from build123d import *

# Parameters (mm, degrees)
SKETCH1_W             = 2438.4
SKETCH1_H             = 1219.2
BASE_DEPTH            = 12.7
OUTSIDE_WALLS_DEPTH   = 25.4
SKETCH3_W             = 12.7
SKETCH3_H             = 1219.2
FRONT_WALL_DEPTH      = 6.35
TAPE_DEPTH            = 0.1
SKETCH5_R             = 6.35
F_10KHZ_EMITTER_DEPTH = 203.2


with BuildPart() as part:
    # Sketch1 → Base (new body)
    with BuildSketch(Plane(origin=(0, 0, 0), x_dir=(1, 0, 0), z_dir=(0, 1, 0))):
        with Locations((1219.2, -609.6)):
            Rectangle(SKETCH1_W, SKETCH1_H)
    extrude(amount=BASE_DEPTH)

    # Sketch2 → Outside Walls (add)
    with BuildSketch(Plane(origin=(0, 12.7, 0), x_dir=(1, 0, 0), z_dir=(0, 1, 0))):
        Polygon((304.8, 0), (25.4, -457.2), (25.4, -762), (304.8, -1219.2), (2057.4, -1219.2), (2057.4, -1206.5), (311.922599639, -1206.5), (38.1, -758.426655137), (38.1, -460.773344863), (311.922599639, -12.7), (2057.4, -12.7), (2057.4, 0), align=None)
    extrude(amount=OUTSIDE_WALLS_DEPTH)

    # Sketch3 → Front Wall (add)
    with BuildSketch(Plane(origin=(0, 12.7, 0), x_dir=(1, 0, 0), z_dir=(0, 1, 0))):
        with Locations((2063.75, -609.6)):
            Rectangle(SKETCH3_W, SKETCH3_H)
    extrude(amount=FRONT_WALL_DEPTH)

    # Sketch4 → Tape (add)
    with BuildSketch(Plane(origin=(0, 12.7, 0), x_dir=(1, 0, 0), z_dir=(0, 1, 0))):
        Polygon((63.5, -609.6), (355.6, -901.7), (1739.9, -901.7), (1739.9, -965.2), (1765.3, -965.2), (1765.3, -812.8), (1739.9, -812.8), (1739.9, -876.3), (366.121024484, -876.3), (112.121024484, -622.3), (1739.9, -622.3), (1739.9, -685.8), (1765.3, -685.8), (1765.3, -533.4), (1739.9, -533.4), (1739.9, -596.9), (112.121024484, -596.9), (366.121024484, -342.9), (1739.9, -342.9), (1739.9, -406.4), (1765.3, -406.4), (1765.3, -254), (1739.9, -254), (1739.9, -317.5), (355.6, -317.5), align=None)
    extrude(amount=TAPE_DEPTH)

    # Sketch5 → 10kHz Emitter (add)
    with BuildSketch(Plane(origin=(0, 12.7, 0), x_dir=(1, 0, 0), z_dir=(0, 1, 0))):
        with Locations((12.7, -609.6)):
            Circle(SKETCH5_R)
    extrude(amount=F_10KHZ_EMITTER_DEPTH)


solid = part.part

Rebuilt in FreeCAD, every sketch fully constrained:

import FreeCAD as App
import Part
import Sketcher
Q = App.Units.Quantity

doc = App.newDocument("Part")
body = doc.addObject("PartDesign::Body", "Body")

sketch1 = body.newObject("Sketcher::SketchObject", "Sketch")
sketch1.AttachmentSupport = (doc.getObject("XZ_Plane"), [""])
sketch1.MapMode = "FlatFace"
sketch1.addGeometry([
    Part.LineSegment(App.Vector(0, 0, 0), App.Vector(0, 1219, 0)),
    Part.LineSegment(App.Vector(0, 1219, 0), App.Vector(2438, 1219, 0)),
    Part.LineSegment(App.Vector(2438, 1219, 0), App.Vector(2438, 0, 0)),
    Part.LineSegment(App.Vector(2438, 0, 0), App.Vector(0, 0, 0)),
], False)
sketch1.addConstraint([
    Sketcher.Constraint("Coincident", 0, 2, 1, 1),
    Sketcher.Constraint("Coincident", 1, 2, 2, 1),
    Sketcher.Constraint("Coincident", 2, 2, 3, 1),
    Sketcher.Constraint("Coincident", 3, 2, 0, 1),
    Sketcher.Constraint("Vertical", 0),
    Sketcher.Constraint("Horizontal", 1),
    Sketcher.Constraint("Vertical", 2),
    Sketcher.Constraint("Horizontal", 3),
    Sketcher.Constraint("Coincident", 3, 2, -1, 1),
    Sketcher.Constraint("DistanceX", 1, 1, 1, 2, Q("96 in")),
    Sketcher.Constraint("DistanceY", 0, 1, 0, 2, Q("48 in")),
])
pad1 = body.newObject("PartDesign::Pad", "Pad")
pad1.Profile = sketch1
pad1.Length = Q("0.5 in")
pad1.Reversed = True

sketch2 = body.newObject("Sketcher::SketchObject", "Sketch001")
sketch2.AttachmentSupport = (doc.getObject("XZ_Plane"), [""])
sketch2.MapMode = "FlatFace"
sketch2.AttachmentOffset = App.Placement(App.Vector(0, 0, -0.5 * 25.4), App.Rotation())
sketch2.addGeometry([
    Part.LineSegment(App.Vector(305, 0, 0), App.Vector(25, 457, 0)),
    Part.LineSegment(App.Vector(25, 457, 0), App.Vector(25, 762, 0)),
    Part.LineSegment(App.Vector(25, 762, 0), App.Vector(305, 1219, 0)),
    Part.LineSegment(App.Vector(305, 1219, 0), App.Vector(2057, 1219, 0)),
    Part.LineSegment(App.Vector(2057, 1219, 0), App.Vector(2057, 1206, 0)),
    Part.LineSegment(App.Vector(2057, 1206, 0), App.Vector(312, 1206, 0)),
    Part.LineSegment(App.Vector(312, 1206, 0), App.Vector(38, 758, 0)),
    Part.LineSegment(App.Vector(38, 758, 0), App.Vector(38, 461, 0)),
    Part.LineSegment(App.Vector(38, 461, 0), App.Vector(312, 13, 0)),
    Part.LineSegment(App.Vector(312, 13, 0), App.Vector(2057, 13, 0)),
    Part.LineSegment(App.Vector(2057, 13, 0), App.Vector(2057, 0, 0)),
    Part.LineSegment(App.Vector(2057, 0, 0), App.Vector(305, 0, 0)),
], False)
sketch2.addConstraint([
    Sketcher.Constraint("Coincident", 0, 2, 1, 1),
    Sketcher.Constraint("Coincident", 1, 2, 2, 1),
    Sketcher.Constraint("Coincident", 2, 2, 3, 1),
    Sketcher.Constraint("Coincident", 3, 2, 4, 1),
    Sketcher.Constraint("Coincident", 4, 2, 5, 1),
    Sketcher.Constraint("Coincident", 5, 2, 6, 1),
    Sketcher.Constraint("Coincident", 6, 2, 7, 1),
    Sketcher.Constraint("Coincident", 7, 2, 8, 1),
    Sketcher.Constraint("Coincident", 8, 2, 9, 1),
    Sketcher.Constraint("Coincident", 9, 2, 10, 1),
    Sketcher.Constraint("Coincident", 10, 2, 11, 1),
    Sketcher.Constraint("Coincident", 11, 2, 0, 1),
    Sketcher.Constraint("Vertical", 1),
    Sketcher.Constraint("Horizontal", 3),
    Sketcher.Constraint("Vertical", 4),
    Sketcher.Constraint("Horizontal", 5),
    Sketcher.Constraint("Vertical", 7),
    Sketcher.Constraint("Horizontal", 9),
    Sketcher.Constraint("Vertical", 10),
    Sketcher.Constraint("Horizontal", 11),
    Sketcher.Constraint("PointOnObject", 10, 2, -1),
    Sketcher.Constraint("Parallel", 2, 6),
    Sketcher.Constraint("Parallel", 0, 8),
    Sketcher.Constraint("Vertical", 5, 2, 8, 2),
    Sketcher.Constraint("Vertical", 4, 2, 9, 2),
    Sketcher.Constraint("Vertical", 2, 2, 11, 2),
    Sketcher.Constraint("Equal", 4, 10),
    Sketcher.Constraint("Equal", 0, 2),
    Sketcher.Constraint("DistanceX", 3, 1, 3, 2, Q("69 in")),
    Sketcher.Constraint("DistanceY", 1, 1, 1, 2, Q("12 in")),
    Sketcher.Constraint("DistanceY", 4, 2, 4, 1, Q("0.5 in")),
    Sketcher.Constraint("DistanceX", -1, 1, 0, 2, Q("1 in")),
    Sketcher.Constraint("DistanceY", -1, 1, 0, 2, Q("18 in")),
    Sketcher.Constraint("DistanceX", -1, 1, 2, 2, Q("12 in")),
    Sketcher.Constraint("DistanceX", -1, 1, 6, 2, Q("1.5 in")),
    Sketcher.Constraint("DistanceX", 5, 2, 5, 1, 1745.4774),
])
pad2 = body.newObject("PartDesign::Pad", "Pad001")
pad2.Profile = sketch2
pad2.Length = Q("1 in")
pad2.Reversed = True

sketch3 = body.newObject("Sketcher::SketchObject", "Sketch002")
sketch3.AttachmentSupport = (doc.getObject("XZ_Plane"), [""])
sketch3.MapMode = "FlatFace"
sketch3.AttachmentOffset = App.Placement(App.Vector(0, 0, -0.5 * 25.4), App.Rotation())
sketch3.addGeometry([
    Part.LineSegment(App.Vector(2057, 0, 0), App.Vector(2057, 1219, 0)),
    Part.LineSegment(App.Vector(2057, 1219, 0), App.Vector(2070, 1219, 0)),
    Part.LineSegment(App.Vector(2070, 1219, 0), App.Vector(2070, 0, 0)),
    Part.LineSegment(App.Vector(2070, 0, 0), App.Vector(2057, 0, 0)),
], False)
sketch3.addConstraint([
    Sketcher.Constraint("Coincident", 0, 2, 1, 1),
    Sketcher.Constraint("Coincident", 1, 2, 2, 1),
    Sketcher.Constraint("Coincident", 2, 2, 3, 1),
    Sketcher.Constraint("Coincident", 3, 2, 0, 1),
    Sketcher.Constraint("Vertical", 0),
    Sketcher.Constraint("Horizontal", 1),
    Sketcher.Constraint("Vertical", 2),
    Sketcher.Constraint("Horizontal", 3),
    Sketcher.Constraint("PointOnObject", 2, 2, -1),
    Sketcher.Constraint("DistanceY", 0, 1, 0, 2, Q("48 in")),
    Sketcher.Constraint("DistanceX", 1, 1, 1, 2, Q("0.5 in")),
    Sketcher.Constraint("DistanceX", -1, 1, 0, 2, Q("81 in")),
])
pad3 = body.newObject("PartDesign::Pad", "Pad002")
pad3.Profile = sketch3
pad3.Length = Q("0.25 in")
pad3.Reversed = True

sketch4 = body.newObject("Sketcher::SketchObject", "Sketch003")
sketch4.AttachmentSupport = (doc.getObject("XZ_Plane"), [""])
sketch4.MapMode = "FlatFace"
sketch4.AttachmentOffset = App.Placement(App.Vector(0, 0, -0.5 * 25.4), App.Rotation())
sketch4.addGeometry([
    Part.LineSegment(App.Vector(64, 610, 0), App.Vector(356, 902, 0)),
    Part.LineSegment(App.Vector(356, 902, 0), App.Vector(1740, 902, 0)),
    Part.LineSegment(App.Vector(1740, 902, 0), App.Vector(1740, 965, 0)),
    Part.LineSegment(App.Vector(1740, 965, 0), App.Vector(1765, 965, 0)),
    Part.LineSegment(App.Vector(1765, 965, 0), App.Vector(1765, 813, 0)),
    Part.LineSegment(App.Vector(1765, 813, 0), App.Vector(1740, 813, 0)),
    Part.LineSegment(App.Vector(1740, 813, 0), App.Vector(1740, 876, 0)),
    Part.LineSegment(App.Vector(1740, 876, 0), App.Vector(366, 876, 0)),
    Part.LineSegment(App.Vector(366, 876, 0), App.Vector(112, 622, 0)),
    Part.LineSegment(App.Vector(112, 622, 0), App.Vector(1740, 622, 0)),
    Part.LineSegment(App.Vector(1740, 622, 0), App.Vector(1740, 686, 0)),
    Part.LineSegment(App.Vector(1740, 686, 0), App.Vector(1765, 686, 0)),
    Part.LineSegment(App.Vector(1765, 686, 0), App.Vector(1765, 533, 0)),
    Part.LineSegment(App.Vector(1765, 533, 0), App.Vector(1740, 533, 0)),
    Part.LineSegment(App.Vector(1740, 533, 0), App.Vector(1740, 597, 0)),
    Part.LineSegment(App.Vector(1740, 597, 0), App.Vector(112, 597, 0)),
    Part.LineSegment(App.Vector(112, 597, 0), App.Vector(366, 343, 0)),
    Part.LineSegment(App.Vector(366, 343, 0), App.Vector(1740, 343, 0)),
    Part.LineSegment(App.Vector(1740, 343, 0), App.Vector(1740, 406, 0)),
    Part.LineSegment(App.Vector(1740, 406, 0), App.Vector(1765, 406, 0)),
    Part.LineSegment(App.Vector(1765, 406, 0), App.Vector(1765, 254, 0)),
    Part.LineSegment(App.Vector(1765, 254, 0), App.Vector(1740, 254, 0)),
    Part.LineSegment(App.Vector(1740, 254, 0), App.Vector(1740, 318, 0)),
    Part.LineSegment(App.Vector(1740, 318, 0), App.Vector(356, 318, 0)),
    Part.LineSegment(App.Vector(356, 318, 0), App.Vector(64, 610, 0)),
], False)
sketch4.addConstraint([
    Sketcher.Constraint("Coincident", 0, 2, 1, 1),
    Sketcher.Constraint("Coincident", 1, 2, 2, 1),
    Sketcher.Constraint("Coincident", 2, 2, 3, 1),
    Sketcher.Constraint("Coincident", 3, 2, 4, 1),
    Sketcher.Constraint("Coincident", 4, 2, 5, 1),
    Sketcher.Constraint("Coincident", 5, 2, 6, 1),
    Sketcher.Constraint("Coincident", 6, 2, 7, 1),
    Sketcher.Constraint("Coincident", 7, 2, 8, 1),
    Sketcher.Constraint("Coincident", 8, 2, 9, 1),
    Sketcher.Constraint("Coincident", 9, 2, 10, 1),
    Sketcher.Constraint("Coincident", 10, 2, 11, 1),
    Sketcher.Constraint("Coincident", 11, 2, 12, 1),
    Sketcher.Constraint("Coincident", 12, 2, 13, 1),
    Sketcher.Constraint("Coincident", 13, 2, 14, 1),
    Sketcher.Constraint("Coincident", 14, 2, 15, 1),
    Sketcher.Constraint("Coincident", 15, 2, 16, 1),
    Sketcher.Constraint("Coincident", 16, 2, 17, 1),
    Sketcher.Constraint("Coincident", 17, 2, 18, 1),
    Sketcher.Constraint("Coincident", 18, 2, 19, 1),
    Sketcher.Constraint("Coincident", 19, 2, 20, 1),
    Sketcher.Constraint("Coincident", 20, 2, 21, 1),
    Sketcher.Constraint("Coincident", 21, 2, 22, 1),
    Sketcher.Constraint("Coincident", 22, 2, 23, 1),
    Sketcher.Constraint("Coincident", 23, 2, 24, 1),
    Sketcher.Constraint("Coincident", 24, 2, 0, 1),
    Sketcher.Constraint("Horizontal", 1),
    Sketcher.Constraint("Vertical", 2),
    Sketcher.Constraint("Horizontal", 3),
    Sketcher.Constraint("Vertical", 4),
    Sketcher.Constraint("Horizontal", 5),
    Sketcher.Constraint("Vertical", 6),
    Sketcher.Constraint("Horizontal", 7),
    Sketcher.Constraint("Horizontal", 9),
    Sketcher.Constraint("Vertical", 10),
    Sketcher.Constraint("Horizontal", 11),
    Sketcher.Constraint("Vertical", 12),
    Sketcher.Constraint("Horizontal", 13),
    Sketcher.Constraint("Vertical", 14),
    Sketcher.Constraint("Horizontal", 15),
    Sketcher.Constraint("Horizontal", 17),
    Sketcher.Constraint("Vertical", 18),
    Sketcher.Constraint("Horizontal", 19),
    Sketcher.Constraint("Vertical", 20),
    Sketcher.Constraint("Horizontal", 21),
    Sketcher.Constraint("Vertical", 22),
    Sketcher.Constraint("Horizontal", 23),
    Sketcher.Constraint("Parallel", 0, 8),
    Sketcher.Constraint("Perpendicular", 8, 16),
    Sketcher.Constraint("Parallel", 16, 24),
    Sketcher.Constraint("Vertical", 2, 2, 5, 2),
    Sketcher.Constraint("Vertical", 6, 2, 9, 2),
    Sketcher.Constraint("Vertical", 4, 2, 11, 2),
    Sketcher.Constraint("Vertical", 10, 2, 13, 2),
    Sketcher.Constraint("Vertical", 8, 2, 15, 2),
    Sketcher.Constraint("Vertical", 7, 2, 16, 2),
    Sketcher.Constraint("Vertical", 14, 2, 17, 2),
    Sketcher.Constraint("Vertical", 12, 2, 19, 2),
    Sketcher.Constraint("Vertical", 18, 2, 21, 2),
    Sketcher.Constraint("Vertical", 0, 2, 23, 2),
    Sketcher.Constraint("Equal", 2, 6),
    Sketcher.Constraint("Equal", 6, 10),
    Sketcher.Constraint("Equal", 4, 12),
    Sketcher.Constraint("Equal", 10, 14),
    Sketcher.Constraint("Equal", 14, 18),
    Sketcher.Constraint("Equal", 12, 20),
    Sketcher.Constraint("Equal", 18, 22),
    Sketcher.Constraint("Equal", 8, 16),
    Sketcher.Constraint("DistanceX", 3, 1, 3, 2, Q("1 in")),
    Sketcher.Constraint("DistanceY", 4, 2, 4, 1, Q("6 in")),
    Sketcher.Constraint("DistanceX", 1, 1, 1, 2, Q("54.5 in")),
    Sketcher.Constraint("DistanceY", 2, 1, 2, 2, Q("2.5 in")),
    Sketcher.Constraint("DistanceX", -1, 1, 0, 2, Q("14 in")),
    Sketcher.Constraint("DistanceY", -1, 1, 2, 2, Q("38 in")),
    Sketcher.Constraint("DistanceY", -1, 1, 10, 2, Q("27 in")),
    Sketcher.Constraint("DistanceX", 7, 2, 7, 1, 1373.778976),
])
pad4 = body.newObject("PartDesign::Pad", "Pad003")
pad4.Profile = sketch4
pad4.Length = 0.1
pad4.Reversed = True

sketch5 = body.newObject("Sketcher::SketchObject", "Sketch004")
sketch5.AttachmentSupport = (doc.getObject("XZ_Plane"), [""])
sketch5.MapMode = "FlatFace"
sketch5.AttachmentOffset = App.Placement(App.Vector(0, 0, -0.5 * 25.4), App.Rotation())
sketch5.addGeometry(Part.Circle(App.Vector(13, 610, 0), App.Vector(0, 0, 1), 6), False)
sketch5.addConstraint([
    Sketcher.Constraint("Diameter", 0, Q("0.5 in")),
    Sketcher.Constraint("DistanceY", -1, 1, 0, 3, Q("24 in")),
    Sketcher.Constraint("DistanceX", -1, 1, 0, 3, Q("0.5 in")),
])
pad5 = body.newObject("PartDesign::Pad", "Pad004")
pad5.Profile = sketch5
pad5.Length = Q("8 in")
pad5.Reversed = True

doc.recompute()
